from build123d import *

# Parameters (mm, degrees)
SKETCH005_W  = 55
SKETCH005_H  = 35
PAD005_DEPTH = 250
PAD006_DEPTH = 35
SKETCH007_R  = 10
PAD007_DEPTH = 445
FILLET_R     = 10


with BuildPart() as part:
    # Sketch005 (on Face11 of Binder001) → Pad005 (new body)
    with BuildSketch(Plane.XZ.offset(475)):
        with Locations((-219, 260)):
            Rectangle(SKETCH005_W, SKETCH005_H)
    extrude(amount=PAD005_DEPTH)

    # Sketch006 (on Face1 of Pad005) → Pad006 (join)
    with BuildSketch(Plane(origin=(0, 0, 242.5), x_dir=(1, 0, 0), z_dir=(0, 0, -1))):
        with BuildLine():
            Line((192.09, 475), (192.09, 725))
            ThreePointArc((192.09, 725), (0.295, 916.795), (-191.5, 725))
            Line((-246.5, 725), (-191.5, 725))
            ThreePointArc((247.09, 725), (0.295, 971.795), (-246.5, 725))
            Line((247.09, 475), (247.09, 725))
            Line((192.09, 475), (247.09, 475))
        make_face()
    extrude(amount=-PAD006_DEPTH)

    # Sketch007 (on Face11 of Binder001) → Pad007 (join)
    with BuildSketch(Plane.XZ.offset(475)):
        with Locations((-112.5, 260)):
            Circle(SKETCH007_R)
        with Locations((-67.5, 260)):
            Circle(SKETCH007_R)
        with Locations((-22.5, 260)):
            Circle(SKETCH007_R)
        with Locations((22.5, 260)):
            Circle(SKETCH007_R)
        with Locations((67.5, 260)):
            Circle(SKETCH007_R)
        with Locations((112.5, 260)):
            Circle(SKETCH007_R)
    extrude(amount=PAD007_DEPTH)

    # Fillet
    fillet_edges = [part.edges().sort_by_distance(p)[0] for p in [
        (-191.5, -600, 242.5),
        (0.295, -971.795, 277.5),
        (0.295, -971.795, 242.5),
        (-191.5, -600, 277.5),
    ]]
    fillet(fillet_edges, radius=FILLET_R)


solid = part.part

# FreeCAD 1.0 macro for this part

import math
import FreeCAD as App
import Part
import Sketcher
from FreeCAD import Vector


def edges_at(feature, points):
    """Names of the edges that pass closest to the given points."""
    edges = feature.Shape.Edges
    near = lambda p: min(range(len(edges)), key=lambda i: edges[i].distToShape(Part.Vertex(*p))[0])
    return sorted({f"Edge{near(p) + 1}" for p in points})


def add_polygon(sketch, points):
    """Adds a closed chain of lines whose ends are joined by coincident constraints."""
    first, n = sketch.GeometryCount, len(points)
    for a, b in zip(points, points[1:] + points[:1]):
        sketch.addGeometry(Part.LineSegment(App.Vector(*a, 0), App.Vector(*b, 0)), False)
    for i in range(n):
        sketch.addConstraint(Sketcher.Constraint("Coincident", first + i, 2, first + (i + 1) % n, 1))

doc = App.newDocument("Part")
body = doc.addObject("PartDesign::Body", "Body")

# Sketch on XZ plane
sketch1 = doc.addObject("Sketcher::SketchObject", "Sketch")
body.addObject(sketch1)
sketch1.AttachmentSupport = (doc.XZ_Plane, [""])
sketch1.MapMode = "FlatFace"
sketch1.AttachmentOffset = App.Placement(Vector(0, 0, 475), App.Rotation())
add_polygon(sketch1, [(-246, 278), (-246, 242), (-192, 242), (-192, 278)])  # lines 0-3
sketch1.addConstraint([
    Sketcher.Constraint("Vertical", 0),
    Sketcher.Constraint("Horizontal", 1),
    Sketcher.Constraint("Vertical", 2),
    Sketcher.Constraint("Horizontal", 3),
    Sketcher.Constraint("DistanceX", 1, 1, 1, 2, 55.0),
    Sketcher.Constraint("DistanceY", 0, 2, 0, 1, 35.0),
    Sketcher.Constraint("DistanceX", 0, 2, -1, 1, 246.5),
    Sketcher.Constraint("DistanceY", -1, 1, 0, 2, 242.5),
])
pad1 = doc.addObject("PartDesign::Pad", "Pad")
body.addObject(pad1)
pad1.Profile = sketch1
pad1.Length = 250

# Sketch on XY plane
sketch2 = doc.addObject("Sketcher::SketchObject", "Sketch001")
body.addObject(sketch2)
sketch2.AttachmentSupport = (doc.XY_Plane, [""])
sketch2.MapMode = "FlatFace"
sketch2.AttachmentOffset = App.Placement(Vector(0, 0, 242.5), App.Rotation())
sketch2.addGeometry([
    Part.LineSegment(Vector(192, -725, 0), Vector(192, -475, 0)),  # 0
    Part.LineSegment(Vector(192, -475, 0), Vector(247, -475, 0)),  # 1
    Part.LineSegment(Vector(247, -475, 0), Vector(247, -725, 0)),  # 2
    Part.ArcOfCircle(Part.Circle(Vector(0, -725, 0), Vector(0, 0, 1), 247), math.radians(180), math.radians(360)),  # 3
    Part.LineSegment(Vector(-246, -725, 0), Vector(-192, -725, 0)),  # 4
    Part.ArcOfCircle(Part.Circle(Vector(0, -725, 0), Vector(0, 0, 1), 192), math.radians(180), math.radians(360)),  # 5
], False)
sketch2.addConstraint([
    Sketcher.Constraint("Coincident", 0, 2, 1, 1),
    Sketcher.Constraint("Coincident", 1, 2, 2, 1),
    Sketcher.Constraint("Tangent", 2, 2, 3, 2),
    Sketcher.Constraint("Coincident", 3, 1, 4, 1),
    Sketcher.Constraint("Coincident", 4, 2, 5, 1),
    Sketcher.Constraint("Tangent", 5, 2, 0, 1),
    Sketcher.Constraint("Vertical", 0),
    Sketcher.Constraint("Horizontal", 1),
    Sketcher.Constraint("Vertical", 2),
    Sketcher.Constraint("Horizontal", 4),
    Sketcher.Constraint("Coincident", 5, 3, 3, 3),
    Sketcher.Constraint("Horizontal", 2, 2, 3, 1),
    Sketcher.Constraint("DistanceX", 1, 1, 1, 2, 55.0),
    Sketcher.Constraint("DistanceY", 0, 1, 0, 2, 250.0),
    Sketcher.Constraint("DistanceY", 3, 3, -1, 1, 725.0),
    Sketcher.Constraint("Radius", 3, 246.795),
    Sketcher.Constraint("DistanceX", 3, 1, -1, 1, 246.5),
])
pad2 = doc.addObject("PartDesign::Pad", "Pad001")
body.addObject(pad2)
pad2.Profile = sketch2
pad2.Length = 35

# Sketch on XZ plane
sketch3 = doc.addObject("Sketcher::SketchObject", "Sketch002")
body.addObject(sketch3)
sketch3.AttachmentSupport = (doc.XZ_Plane, [""])
sketch3.MapMode = "FlatFace"
sketch3.AttachmentOffset = App.Placement(Vector(0, 0, 475), App.Rotation())
sketch3.addGeometry([
    Part.Circle(Vector(-112, 260, 0), Vector(0, 0, 1), 10),  # 0
    Part.Circle(Vector(-68, 260, 0), Vector(0, 0, 1), 10),  # 1
    Part.Circle(Vector(-22, 260, 0), Vector(0, 0, 1), 10),  # 2
    Part.Circle(Vector(22, 260, 0), Vector(0, 0, 1), 10),  # 3
    Part.Circle(Vector(68, 260, 0), Vector(0, 0, 1), 10),  # 4
    Part.Circle(Vector(112, 260, 0), Vector(0, 0, 1), 10),  # 5
], False)
sketch3.addConstraint([
    Sketcher.Constraint("Equal", 0, 1),
    Sketcher.Constraint("Equal", 1, 2),
    Sketcher.Constraint("Equal", 2, 3),
    Sketcher.Constraint("Equal", 3, 4),
    Sketcher.Constraint("Equal", 4, 5),
    Sketcher.Constraint("Symmetric", 2, 3, 3, 3, -2),
    Sketcher.Constraint("Symmetric", 1, 3, 4, 3, -2),
    Sketcher.Constraint("Symmetric", 0, 3, 5, 3, -2),
    Sketcher.Constraint("Horizontal", 0, 3, 1, 3),
    Sketcher.Constraint("Horizontal", 1, 3, 2, 3),
    Sketcher.Constraint("Diameter", 0, 20.0),
    Sketcher.Constraint("DistanceY", -1, 1, 0, 3, 260.0),
    Sketcher.Constraint("DistanceX", 0, 3, 1, 3, 45.0),
    Sketcher.Constraint("DistanceX", 1, 3, 2, 3, 45.0),
    Sketcher.Constraint("DistanceX", 2, 3, 3, 3, 45.0),
])
pad3 = doc.addObject("PartDesign::Pad", "Pad002")
body.addObject(pad3)
pad3.Profile = sketch3
pad3.Length = 445
doc.recompute()

fillet = doc.addObject("PartDesign::Fillet", "Fillet")
body.addObject(fillet)
fillet.Base = (pad3, edges_at(pad3, [
    (-191.5, -600, 242.5),
    (0.295, -971.795, 277.5),
    (0.295, -971.795, 242.5),
    (-191.5, -600, 277.5),
]))
fillet.Radius = 10

doc.recompute()
